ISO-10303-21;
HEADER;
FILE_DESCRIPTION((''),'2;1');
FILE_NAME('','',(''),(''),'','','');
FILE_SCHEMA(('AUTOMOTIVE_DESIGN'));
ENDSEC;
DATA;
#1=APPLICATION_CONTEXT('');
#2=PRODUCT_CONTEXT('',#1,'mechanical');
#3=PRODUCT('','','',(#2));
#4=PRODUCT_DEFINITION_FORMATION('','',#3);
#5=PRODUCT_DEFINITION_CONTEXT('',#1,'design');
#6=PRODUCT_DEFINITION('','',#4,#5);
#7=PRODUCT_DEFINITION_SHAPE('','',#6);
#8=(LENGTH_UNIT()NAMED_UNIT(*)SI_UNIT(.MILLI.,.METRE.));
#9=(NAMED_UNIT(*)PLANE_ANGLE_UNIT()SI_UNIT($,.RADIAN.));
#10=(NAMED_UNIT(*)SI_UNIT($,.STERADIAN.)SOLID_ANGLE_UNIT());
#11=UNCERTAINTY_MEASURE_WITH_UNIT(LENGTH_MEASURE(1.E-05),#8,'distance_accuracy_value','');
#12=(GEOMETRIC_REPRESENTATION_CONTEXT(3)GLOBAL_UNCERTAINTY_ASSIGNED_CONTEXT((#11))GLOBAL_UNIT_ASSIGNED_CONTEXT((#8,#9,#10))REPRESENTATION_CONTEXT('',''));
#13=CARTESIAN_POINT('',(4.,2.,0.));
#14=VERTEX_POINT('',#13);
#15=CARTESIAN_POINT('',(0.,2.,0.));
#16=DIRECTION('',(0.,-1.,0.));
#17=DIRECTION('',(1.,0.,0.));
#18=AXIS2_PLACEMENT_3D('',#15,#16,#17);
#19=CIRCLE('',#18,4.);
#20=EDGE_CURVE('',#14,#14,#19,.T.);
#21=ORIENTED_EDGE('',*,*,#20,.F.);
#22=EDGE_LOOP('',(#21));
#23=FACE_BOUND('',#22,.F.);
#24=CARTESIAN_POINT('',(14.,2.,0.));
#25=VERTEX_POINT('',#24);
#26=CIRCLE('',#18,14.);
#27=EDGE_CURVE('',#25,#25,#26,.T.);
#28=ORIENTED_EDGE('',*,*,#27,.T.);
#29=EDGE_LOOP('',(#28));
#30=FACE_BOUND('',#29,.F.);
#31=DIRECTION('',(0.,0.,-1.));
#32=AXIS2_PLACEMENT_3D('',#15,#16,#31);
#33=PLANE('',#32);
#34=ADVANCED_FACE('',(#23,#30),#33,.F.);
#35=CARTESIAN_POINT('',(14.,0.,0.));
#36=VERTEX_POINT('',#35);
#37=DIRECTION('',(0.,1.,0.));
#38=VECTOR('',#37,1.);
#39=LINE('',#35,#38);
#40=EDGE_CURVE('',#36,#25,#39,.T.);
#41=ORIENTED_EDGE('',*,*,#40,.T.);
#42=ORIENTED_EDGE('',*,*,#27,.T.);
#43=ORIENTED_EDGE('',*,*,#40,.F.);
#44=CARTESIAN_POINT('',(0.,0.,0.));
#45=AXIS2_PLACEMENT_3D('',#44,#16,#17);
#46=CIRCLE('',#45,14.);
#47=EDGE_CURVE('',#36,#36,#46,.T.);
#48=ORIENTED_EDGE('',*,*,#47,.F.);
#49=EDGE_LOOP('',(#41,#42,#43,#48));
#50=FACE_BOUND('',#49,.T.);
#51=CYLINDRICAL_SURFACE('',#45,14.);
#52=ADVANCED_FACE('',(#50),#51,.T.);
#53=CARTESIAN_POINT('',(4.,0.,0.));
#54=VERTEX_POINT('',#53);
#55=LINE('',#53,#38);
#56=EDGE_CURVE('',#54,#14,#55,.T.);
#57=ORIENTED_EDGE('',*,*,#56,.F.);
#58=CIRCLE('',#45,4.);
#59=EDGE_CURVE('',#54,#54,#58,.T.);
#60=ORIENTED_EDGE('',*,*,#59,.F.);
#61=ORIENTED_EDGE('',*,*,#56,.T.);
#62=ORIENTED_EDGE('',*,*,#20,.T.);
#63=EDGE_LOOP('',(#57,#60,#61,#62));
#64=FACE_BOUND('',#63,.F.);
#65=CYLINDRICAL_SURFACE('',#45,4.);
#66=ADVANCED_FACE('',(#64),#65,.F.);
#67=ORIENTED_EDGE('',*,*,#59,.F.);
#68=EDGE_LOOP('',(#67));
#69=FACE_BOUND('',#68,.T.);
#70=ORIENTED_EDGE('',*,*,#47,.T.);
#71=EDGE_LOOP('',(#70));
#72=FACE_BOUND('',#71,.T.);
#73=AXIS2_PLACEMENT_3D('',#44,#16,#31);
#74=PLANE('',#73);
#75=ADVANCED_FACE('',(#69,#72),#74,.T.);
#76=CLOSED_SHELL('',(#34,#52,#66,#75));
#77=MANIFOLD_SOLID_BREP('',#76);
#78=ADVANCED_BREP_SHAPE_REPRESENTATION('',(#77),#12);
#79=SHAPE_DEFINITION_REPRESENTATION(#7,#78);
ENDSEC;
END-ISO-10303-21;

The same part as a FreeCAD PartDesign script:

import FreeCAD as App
import Part
import Sketcher
Q = App.Units.Quantity

doc = App.newDocument("Part")
body = doc.addObject("PartDesign::Body", "Body")

sketch1 = body.newObject("Sketcher::SketchObject", "Sketch")
sketch1.AttachmentSupport = (doc.getObject("XZ_Plane"), [""])
sketch1.MapMode = "FlatFace"
sketch1.addGeometry([
    Part.Circle(App.Vector(0, 0, 0), App.Vector(0, 0, 1), 14),
    Part.Circle(App.Vector(0, 0, 0), App.Vector(0, 0, 1), 4),
], False)
sketch1.addConstraint([
    Sketcher.Constraint("Coincident", 0, 3, -1, 1),
    Sketcher.Constraint("Coincident", 1, 3, -1, 1),
    Sketcher.Constraint("Diameter", 0, Q("28 mm")),
    Sketcher.Constraint("Diameter", 1, Q("8 mm")),
])
pad1 = body.newObject("PartDesign::Pad", "Pad")
pad1.Profile = sketch1
pad1.Length = 2
pad1.Reversed = True

doc.recompute()
